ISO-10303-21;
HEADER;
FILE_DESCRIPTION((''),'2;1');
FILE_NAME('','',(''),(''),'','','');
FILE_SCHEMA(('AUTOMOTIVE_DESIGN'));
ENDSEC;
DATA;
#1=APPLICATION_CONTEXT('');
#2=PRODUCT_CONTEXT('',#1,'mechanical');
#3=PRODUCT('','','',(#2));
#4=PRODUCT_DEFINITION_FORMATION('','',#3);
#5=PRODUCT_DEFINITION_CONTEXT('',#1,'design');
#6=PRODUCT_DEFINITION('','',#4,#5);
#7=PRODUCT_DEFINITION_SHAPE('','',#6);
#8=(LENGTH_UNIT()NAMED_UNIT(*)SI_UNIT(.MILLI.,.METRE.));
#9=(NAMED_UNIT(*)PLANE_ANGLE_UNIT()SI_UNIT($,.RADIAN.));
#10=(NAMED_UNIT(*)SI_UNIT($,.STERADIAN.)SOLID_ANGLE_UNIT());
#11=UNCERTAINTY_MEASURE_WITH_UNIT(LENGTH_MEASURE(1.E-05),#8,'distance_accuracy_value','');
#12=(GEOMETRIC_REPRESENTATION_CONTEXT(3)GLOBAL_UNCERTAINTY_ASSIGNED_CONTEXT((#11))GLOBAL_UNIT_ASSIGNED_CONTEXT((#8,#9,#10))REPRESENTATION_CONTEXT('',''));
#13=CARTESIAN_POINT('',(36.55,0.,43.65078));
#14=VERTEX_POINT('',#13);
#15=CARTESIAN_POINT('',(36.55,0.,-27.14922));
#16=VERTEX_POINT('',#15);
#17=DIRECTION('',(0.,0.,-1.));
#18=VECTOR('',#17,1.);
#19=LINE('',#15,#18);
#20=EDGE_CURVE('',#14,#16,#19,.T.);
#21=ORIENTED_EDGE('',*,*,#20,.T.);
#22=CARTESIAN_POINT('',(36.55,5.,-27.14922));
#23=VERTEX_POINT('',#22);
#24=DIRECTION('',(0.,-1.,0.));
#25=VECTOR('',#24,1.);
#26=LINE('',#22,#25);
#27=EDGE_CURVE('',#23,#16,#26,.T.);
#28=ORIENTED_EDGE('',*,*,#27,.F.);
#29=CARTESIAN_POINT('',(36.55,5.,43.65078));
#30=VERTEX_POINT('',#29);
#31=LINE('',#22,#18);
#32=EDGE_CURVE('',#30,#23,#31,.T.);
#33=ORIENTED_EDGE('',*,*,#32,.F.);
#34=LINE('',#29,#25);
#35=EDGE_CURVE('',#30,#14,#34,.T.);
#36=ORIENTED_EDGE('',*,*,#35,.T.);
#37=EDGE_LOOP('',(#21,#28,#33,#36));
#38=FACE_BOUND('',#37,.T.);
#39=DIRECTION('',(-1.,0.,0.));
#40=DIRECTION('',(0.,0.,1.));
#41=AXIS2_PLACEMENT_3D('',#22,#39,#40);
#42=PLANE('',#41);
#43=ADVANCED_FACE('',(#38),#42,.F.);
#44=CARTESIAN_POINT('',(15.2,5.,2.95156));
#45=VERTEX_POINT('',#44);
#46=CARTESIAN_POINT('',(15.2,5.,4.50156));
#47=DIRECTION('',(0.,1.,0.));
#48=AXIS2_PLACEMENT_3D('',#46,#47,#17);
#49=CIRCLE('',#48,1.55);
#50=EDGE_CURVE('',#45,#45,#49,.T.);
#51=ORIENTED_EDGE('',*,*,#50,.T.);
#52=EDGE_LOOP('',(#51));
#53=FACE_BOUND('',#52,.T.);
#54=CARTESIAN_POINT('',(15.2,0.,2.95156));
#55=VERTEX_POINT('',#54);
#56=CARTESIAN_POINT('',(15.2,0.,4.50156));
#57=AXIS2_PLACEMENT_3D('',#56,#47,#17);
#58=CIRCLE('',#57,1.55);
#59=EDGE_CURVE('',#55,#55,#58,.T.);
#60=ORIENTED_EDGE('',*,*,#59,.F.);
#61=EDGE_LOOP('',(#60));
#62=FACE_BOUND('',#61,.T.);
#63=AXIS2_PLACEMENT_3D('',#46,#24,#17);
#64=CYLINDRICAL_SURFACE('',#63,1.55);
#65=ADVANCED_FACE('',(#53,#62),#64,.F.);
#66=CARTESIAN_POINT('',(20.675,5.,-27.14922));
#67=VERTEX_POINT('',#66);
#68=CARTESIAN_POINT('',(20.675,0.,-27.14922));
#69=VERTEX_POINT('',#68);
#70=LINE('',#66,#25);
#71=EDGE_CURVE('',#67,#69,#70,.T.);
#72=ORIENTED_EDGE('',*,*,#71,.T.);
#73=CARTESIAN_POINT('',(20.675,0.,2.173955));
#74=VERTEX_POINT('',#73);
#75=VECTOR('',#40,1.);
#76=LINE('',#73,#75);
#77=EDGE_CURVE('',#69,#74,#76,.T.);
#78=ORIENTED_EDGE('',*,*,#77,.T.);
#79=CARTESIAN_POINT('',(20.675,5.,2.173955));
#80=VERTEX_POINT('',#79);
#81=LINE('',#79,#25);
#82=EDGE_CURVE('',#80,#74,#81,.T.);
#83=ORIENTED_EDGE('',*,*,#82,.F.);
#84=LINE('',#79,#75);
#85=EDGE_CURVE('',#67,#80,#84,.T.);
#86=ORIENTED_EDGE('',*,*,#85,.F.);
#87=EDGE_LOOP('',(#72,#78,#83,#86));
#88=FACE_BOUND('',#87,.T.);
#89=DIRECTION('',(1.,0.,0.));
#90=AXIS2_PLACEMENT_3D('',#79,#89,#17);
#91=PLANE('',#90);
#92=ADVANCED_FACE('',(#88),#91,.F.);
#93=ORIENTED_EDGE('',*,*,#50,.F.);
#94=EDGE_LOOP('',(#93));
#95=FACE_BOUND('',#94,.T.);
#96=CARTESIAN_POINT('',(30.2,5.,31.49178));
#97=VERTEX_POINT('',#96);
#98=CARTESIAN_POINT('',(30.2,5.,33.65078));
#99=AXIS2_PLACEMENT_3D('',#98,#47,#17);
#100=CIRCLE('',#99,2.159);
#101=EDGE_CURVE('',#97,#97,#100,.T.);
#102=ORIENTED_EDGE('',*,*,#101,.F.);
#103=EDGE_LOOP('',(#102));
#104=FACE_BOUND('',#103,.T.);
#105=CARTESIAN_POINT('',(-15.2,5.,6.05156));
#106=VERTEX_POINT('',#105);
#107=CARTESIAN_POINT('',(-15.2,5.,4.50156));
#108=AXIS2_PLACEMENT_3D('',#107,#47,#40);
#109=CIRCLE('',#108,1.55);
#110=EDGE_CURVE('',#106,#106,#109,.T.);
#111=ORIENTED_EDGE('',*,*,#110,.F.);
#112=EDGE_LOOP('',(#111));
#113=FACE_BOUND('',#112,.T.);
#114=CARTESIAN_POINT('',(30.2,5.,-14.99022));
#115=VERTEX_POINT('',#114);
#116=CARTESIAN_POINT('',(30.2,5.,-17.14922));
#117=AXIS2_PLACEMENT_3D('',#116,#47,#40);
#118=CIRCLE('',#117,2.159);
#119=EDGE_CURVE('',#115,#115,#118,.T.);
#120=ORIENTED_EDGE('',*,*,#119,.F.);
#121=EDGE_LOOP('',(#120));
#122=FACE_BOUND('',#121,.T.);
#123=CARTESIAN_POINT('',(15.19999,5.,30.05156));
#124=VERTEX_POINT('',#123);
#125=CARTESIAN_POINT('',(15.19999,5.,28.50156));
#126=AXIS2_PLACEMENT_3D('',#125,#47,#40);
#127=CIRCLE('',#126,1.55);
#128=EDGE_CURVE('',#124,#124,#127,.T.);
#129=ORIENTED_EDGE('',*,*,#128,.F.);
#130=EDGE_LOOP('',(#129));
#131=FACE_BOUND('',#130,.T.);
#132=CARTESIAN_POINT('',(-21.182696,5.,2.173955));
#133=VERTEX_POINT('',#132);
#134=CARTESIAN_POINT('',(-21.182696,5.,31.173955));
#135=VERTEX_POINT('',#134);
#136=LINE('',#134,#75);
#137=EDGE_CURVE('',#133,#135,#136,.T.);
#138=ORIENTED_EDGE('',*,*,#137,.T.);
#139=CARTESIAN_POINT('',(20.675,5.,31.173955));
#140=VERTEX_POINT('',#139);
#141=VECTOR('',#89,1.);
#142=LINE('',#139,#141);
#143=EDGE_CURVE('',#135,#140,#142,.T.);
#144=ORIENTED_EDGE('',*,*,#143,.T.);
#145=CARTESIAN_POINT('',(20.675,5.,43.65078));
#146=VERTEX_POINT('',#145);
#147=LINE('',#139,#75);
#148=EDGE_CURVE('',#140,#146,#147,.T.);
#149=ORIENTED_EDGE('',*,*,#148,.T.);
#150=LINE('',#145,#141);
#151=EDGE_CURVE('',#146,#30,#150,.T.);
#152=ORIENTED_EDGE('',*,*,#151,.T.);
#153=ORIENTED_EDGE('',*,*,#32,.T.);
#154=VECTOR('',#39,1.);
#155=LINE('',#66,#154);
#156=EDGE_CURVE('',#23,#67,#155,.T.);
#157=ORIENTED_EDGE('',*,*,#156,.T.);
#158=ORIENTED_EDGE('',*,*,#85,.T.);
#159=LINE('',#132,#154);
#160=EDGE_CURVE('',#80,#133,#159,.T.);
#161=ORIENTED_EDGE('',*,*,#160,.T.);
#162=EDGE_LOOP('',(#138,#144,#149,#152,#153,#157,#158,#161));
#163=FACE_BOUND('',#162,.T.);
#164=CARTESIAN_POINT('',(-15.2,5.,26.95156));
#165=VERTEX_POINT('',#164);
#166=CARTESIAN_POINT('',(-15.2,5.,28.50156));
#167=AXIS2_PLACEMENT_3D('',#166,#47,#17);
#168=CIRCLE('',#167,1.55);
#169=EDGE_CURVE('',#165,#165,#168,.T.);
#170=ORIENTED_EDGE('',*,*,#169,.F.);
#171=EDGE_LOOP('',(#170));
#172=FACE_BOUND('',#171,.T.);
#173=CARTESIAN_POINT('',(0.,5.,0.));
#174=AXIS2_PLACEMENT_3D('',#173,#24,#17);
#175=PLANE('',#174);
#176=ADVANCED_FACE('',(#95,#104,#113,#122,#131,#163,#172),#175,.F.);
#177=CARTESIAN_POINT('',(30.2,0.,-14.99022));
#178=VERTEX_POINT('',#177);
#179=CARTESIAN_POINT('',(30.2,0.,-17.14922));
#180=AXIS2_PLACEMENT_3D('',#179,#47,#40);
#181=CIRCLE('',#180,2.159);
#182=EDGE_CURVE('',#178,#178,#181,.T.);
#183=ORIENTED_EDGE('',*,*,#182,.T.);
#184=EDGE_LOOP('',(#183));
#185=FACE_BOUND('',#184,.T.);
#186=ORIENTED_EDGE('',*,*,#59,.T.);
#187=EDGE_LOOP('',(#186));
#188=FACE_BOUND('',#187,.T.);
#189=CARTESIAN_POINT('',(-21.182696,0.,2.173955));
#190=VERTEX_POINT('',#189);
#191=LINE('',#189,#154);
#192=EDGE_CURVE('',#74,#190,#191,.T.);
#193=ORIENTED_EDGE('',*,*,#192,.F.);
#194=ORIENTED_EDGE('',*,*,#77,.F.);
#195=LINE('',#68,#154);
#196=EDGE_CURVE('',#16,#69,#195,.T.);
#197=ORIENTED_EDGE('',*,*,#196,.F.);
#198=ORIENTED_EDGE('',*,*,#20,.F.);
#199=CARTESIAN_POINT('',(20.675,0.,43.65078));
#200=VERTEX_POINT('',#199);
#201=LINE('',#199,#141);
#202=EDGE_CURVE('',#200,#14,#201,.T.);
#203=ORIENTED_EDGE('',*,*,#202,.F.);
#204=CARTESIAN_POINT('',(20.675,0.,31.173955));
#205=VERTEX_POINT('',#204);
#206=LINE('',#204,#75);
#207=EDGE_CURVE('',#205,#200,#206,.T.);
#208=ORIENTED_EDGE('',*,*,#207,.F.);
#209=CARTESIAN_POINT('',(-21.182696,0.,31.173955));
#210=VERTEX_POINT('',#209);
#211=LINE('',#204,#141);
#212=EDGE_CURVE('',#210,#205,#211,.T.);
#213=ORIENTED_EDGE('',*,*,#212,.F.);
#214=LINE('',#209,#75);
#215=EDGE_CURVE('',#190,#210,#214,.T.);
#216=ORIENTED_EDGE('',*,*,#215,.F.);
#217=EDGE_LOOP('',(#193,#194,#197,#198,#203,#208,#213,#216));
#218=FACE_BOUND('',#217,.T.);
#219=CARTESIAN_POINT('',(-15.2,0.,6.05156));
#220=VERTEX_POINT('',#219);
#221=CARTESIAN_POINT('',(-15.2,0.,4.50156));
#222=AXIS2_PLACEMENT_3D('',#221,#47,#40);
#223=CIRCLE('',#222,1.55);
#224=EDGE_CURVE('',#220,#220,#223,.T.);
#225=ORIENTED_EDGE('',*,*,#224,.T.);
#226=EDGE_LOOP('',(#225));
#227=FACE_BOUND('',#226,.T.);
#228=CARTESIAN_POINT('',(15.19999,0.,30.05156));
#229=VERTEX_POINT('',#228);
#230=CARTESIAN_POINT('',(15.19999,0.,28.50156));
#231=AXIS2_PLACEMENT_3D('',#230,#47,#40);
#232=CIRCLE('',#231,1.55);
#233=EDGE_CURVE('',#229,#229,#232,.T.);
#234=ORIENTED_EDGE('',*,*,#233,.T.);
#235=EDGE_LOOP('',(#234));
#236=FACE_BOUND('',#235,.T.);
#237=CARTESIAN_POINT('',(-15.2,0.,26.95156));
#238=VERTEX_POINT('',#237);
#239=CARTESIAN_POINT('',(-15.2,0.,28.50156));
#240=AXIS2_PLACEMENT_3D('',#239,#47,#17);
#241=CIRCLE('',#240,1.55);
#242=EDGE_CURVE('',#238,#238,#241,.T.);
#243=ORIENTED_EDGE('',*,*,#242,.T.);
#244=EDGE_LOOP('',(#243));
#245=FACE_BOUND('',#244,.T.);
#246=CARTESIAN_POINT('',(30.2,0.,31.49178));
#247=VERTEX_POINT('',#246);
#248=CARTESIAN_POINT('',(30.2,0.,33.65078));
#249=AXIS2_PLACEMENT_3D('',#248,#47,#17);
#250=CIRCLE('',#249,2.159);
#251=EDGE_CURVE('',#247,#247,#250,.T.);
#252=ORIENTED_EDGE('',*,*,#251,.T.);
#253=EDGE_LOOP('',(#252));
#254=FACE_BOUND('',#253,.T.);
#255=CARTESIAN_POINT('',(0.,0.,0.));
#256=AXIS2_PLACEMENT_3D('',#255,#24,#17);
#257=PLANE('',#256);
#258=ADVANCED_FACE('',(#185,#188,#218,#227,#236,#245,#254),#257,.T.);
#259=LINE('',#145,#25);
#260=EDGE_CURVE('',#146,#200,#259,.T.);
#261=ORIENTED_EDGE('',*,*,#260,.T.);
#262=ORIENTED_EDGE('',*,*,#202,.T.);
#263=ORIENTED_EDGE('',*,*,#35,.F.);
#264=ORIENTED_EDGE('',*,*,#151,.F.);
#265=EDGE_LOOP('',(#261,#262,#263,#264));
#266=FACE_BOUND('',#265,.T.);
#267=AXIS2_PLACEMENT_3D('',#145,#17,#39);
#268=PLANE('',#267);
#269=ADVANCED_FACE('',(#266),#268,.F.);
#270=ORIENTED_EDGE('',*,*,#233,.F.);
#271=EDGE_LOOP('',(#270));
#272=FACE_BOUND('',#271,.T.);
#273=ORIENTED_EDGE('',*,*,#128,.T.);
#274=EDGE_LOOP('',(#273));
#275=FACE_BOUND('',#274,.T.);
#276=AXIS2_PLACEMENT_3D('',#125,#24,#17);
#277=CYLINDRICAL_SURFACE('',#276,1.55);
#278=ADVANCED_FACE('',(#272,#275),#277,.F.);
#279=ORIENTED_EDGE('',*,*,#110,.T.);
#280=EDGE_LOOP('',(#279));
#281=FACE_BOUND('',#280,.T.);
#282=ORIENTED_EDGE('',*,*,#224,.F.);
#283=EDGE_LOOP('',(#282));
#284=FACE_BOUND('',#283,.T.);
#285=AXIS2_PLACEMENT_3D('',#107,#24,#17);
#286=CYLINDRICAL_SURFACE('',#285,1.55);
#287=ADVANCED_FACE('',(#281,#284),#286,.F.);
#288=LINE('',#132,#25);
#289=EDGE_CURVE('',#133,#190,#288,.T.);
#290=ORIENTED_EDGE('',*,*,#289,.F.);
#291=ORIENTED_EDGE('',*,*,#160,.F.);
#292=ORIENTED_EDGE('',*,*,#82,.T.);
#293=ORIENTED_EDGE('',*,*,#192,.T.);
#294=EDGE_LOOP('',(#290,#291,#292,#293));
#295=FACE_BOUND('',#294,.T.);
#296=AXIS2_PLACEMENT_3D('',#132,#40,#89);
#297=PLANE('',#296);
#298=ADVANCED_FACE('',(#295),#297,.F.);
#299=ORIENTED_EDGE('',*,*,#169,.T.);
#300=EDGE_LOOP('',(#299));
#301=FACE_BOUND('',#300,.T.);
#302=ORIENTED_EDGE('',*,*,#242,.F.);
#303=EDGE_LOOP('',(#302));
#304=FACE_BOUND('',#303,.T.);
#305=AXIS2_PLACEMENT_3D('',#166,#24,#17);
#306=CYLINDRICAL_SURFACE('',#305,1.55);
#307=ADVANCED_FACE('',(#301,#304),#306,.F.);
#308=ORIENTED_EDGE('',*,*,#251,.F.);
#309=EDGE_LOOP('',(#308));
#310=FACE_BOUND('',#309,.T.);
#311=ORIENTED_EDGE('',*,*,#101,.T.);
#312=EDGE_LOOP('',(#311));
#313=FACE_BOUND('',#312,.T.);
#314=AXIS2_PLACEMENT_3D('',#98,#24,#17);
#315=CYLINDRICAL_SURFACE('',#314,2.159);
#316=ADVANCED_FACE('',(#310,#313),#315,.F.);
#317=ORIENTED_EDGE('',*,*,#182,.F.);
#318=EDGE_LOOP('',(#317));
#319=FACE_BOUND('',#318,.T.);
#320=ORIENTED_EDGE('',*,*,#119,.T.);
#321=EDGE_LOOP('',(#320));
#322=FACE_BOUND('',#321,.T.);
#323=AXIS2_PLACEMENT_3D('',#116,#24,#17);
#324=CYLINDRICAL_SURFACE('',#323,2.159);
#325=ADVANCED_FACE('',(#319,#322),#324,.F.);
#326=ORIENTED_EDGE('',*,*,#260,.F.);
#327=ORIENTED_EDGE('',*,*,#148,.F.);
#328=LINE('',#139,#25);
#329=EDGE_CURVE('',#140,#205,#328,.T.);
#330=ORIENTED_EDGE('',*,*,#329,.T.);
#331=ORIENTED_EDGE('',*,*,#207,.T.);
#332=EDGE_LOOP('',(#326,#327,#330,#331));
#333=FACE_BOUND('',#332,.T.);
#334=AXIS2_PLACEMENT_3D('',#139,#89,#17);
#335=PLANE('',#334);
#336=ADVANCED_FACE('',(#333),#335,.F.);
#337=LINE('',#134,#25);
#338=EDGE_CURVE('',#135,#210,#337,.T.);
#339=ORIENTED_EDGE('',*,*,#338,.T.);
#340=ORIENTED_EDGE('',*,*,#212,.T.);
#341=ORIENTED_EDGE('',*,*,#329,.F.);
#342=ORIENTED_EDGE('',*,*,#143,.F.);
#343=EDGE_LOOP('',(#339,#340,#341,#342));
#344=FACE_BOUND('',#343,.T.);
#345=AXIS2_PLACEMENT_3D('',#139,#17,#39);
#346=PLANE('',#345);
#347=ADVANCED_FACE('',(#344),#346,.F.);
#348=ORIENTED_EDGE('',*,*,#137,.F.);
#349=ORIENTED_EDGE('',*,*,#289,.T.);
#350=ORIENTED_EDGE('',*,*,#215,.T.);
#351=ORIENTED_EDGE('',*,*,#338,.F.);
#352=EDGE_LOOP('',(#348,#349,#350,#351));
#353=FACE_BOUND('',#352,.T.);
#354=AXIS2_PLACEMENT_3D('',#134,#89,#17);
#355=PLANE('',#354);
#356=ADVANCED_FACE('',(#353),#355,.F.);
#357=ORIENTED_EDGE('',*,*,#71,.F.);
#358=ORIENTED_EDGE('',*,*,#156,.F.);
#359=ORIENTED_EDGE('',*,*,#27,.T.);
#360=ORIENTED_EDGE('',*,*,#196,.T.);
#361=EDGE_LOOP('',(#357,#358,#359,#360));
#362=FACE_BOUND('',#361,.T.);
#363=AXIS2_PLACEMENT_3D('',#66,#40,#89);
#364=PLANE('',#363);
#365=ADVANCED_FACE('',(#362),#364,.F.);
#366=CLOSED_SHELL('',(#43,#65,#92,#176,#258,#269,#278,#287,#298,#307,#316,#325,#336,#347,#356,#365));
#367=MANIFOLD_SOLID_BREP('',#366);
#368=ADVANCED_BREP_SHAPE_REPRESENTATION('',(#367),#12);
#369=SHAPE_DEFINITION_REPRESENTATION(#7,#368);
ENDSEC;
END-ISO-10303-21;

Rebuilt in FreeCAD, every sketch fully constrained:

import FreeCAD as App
import Part
import Sketcher
from FreeCAD import Vector
Q = App.Units.Quantity

doc = App.newDocument("Part")
body = doc.addObject("PartDesign::Body", "Body")

# Sketch on XZ plane
sketch1 = body.newObject("Sketcher::SketchObject", "Sketch")
sketch1.AttachmentSupport = (doc.getObject("XZ_Plane"), [""])
sketch1.MapMode = "FlatFace"
sketch1.addGeometry([
    Part.LineSegment(Vector(36.55, 43.65078, 0), Vector(36.55, -27.14922, 0)),  # 0
    Part.LineSegment(Vector(36.55, -27.14922, 0), Vector(20.675, -27.14922, 0)),  # 1
    Part.LineSegment(Vector(20.675, -27.14922, 0), Vector(20.675, 2.173955, 0)),  # 2
    Part.LineSegment(Vector(20.675, 2.173955, 0), Vector(-21.182696, 2.173955, 0)),  # 3
    Part.LineSegment(Vector(-21.182696, 2.173955, 0), Vector(-21.182696, 31.173955, 0)),  # 4
    Part.LineSegment(Vector(-21.182696, 31.173955, 0), Vector(20.675, 31.173955, 0)),  # 5
    Part.LineSegment(Vector(20.675, 31.173955, 0), Vector(20.675, 43.65078, 0)),  # 6
    Part.LineSegment(Vector(20.675, 43.65078, 0), Vector(36.55, 43.65078, 0)),  # 7
    Part.Circle(Vector(30.2, 33.65078, 0), Vector(0, 0, 1), 2.159),  # 8
    Part.Circle(Vector(15.19999, 28.50156, 0), Vector(0, 0, 1), 1.55),  # 9
    Part.Circle(Vector(-15.2, 28.50156, 0), Vector(0, 0, 1), 1.55),  # 10
    Part.Circle(Vector(15.2, 4.50156, 0), Vector(0, 0, 1), 1.55),  # 11
    Part.Circle(Vector(30.2, -17.14922, 0), Vector(0, 0, 1), 2.159),  # 12
    Part.Circle(Vector(-15.2, 4.50156, 0), Vector(0, 0, 1), 1.55),  # 13
], False)
sketch1.addConstraint([
    Sketcher.Constraint("Coincident", 0, 2, 1, 1),
    Sketcher.Constraint("Coincident", 1, 2, 2, 1),
    Sketcher.Constraint("Coincident", 2, 2, 3, 1),
    Sketcher.Constraint("Coincident", 3, 2, 4, 1),
    Sketcher.Constraint("Coincident", 4, 2, 5, 1),
    Sketcher.Constraint("Coincident", 5, 2, 6, 1),
    Sketcher.Constraint("Coincident", 6, 2, 7, 1),
    Sketcher.Constraint("Coincident", 7, 2, 0, 1),
    Sketcher.Constraint("Vertical", 0),
    Sketcher.Constraint("Horizontal", 1),
    Sketcher.Constraint("Vertical", 2),
    Sketcher.Constraint("Horizontal", 3),
    Sketcher.Constraint("Vertical", 4),
    Sketcher.Constraint("Horizontal", 5),
    Sketcher.Constraint("Vertical", 6),
    Sketcher.Constraint("Horizontal", 7),
    Sketcher.Constraint("Equal", 9, 10),
    Sketcher.Constraint("Equal", 10, 11),
    Sketcher.Constraint("Equal", 8, 12),
    Sketcher.Constraint("Equal", 11, 13),
    Sketcher.Constraint("Symmetric", 9, 3, 10, 3, -2),
    Sketcher.Constraint("Symmetric", 11, 3, 13, 3, -2),
    Sketcher.Constraint("Vertical", 8, 3, 12, 3),
    Sketcher.Constraint("Vertical", 10, 3, 13, 3),
    Sketcher.Constraint("Vertical", 2, 2, 5, 2),
    Sketcher.Constraint("Diameter", 9, Q("3.1 mm")),
    Sketcher.Constraint("DistanceY", 4, 1, 4, 2, Q("29 mm")),
    Sketcher.Constraint("Diameter", 8, Q("4.318 mm")),
    Sketcher.Constraint("DistanceY", 0, 2, 0, 1, Q("70.8 mm")),
    Sketcher.Constraint("DistanceY", 11, 3, 9, 3, Q("24 mm")),
    Sketcher.Constraint("DistanceX", 11, 3, 8, 3, Q("15 mm")),
    Sketcher.Constraint("DistanceY", 0, 2, 12, 3, Q("10 mm")),
    Sketcher.Constraint("DistanceY", 8, 3, 6, 2, Q("10 mm")),
    Sketcher.Constraint("DistanceX", -1, 1, 8, 3, Q("30.2 mm")),
    Sketcher.Constraint("DistanceX", 1, 2, 1, 1, Q("15.875 mm")),
    Sketcher.Constraint("DistanceX", -1, 1, 0, 2, Q("36.55 mm")),
    Sketcher.Constraint("DistanceX", 3, 2, 3, 1, Q("41.857696 mm")),
    Sketcher.Constraint("DistanceY", 2, 1, 2, 2, Q("29.323175 mm")),
    Sketcher.Constraint("DistanceY", -1, 1, 8, 3, Q("33.65078 mm")),
    Sketcher.Constraint("DistanceY", -1, 1, 9, 3, Q("28.50156 mm")),
])
pad1 = body.newObject("PartDesign::Pad", "Pad")
pad1.Profile = sketch1
pad1.Length = 5
pad1.Reversed = True

doc.recompute()
